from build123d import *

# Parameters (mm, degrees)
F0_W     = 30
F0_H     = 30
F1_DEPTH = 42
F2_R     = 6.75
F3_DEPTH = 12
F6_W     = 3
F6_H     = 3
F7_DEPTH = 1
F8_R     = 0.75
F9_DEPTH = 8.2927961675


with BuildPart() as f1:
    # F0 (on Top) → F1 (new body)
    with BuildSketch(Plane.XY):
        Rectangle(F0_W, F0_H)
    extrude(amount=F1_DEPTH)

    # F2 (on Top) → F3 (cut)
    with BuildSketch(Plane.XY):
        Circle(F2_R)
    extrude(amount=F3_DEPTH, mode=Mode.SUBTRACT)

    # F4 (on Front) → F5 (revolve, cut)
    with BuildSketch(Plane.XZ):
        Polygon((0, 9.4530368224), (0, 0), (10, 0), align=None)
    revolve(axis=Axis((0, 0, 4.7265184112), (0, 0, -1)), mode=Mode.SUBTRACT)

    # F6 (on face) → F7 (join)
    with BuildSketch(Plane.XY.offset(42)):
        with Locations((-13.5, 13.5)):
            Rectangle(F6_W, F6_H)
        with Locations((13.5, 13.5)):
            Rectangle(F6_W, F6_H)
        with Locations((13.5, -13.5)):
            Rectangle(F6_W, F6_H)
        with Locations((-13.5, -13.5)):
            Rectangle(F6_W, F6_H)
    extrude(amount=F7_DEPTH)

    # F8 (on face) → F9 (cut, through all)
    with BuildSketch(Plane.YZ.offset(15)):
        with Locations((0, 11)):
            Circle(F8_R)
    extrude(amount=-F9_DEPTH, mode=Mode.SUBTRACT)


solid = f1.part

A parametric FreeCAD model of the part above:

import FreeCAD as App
import Part
import Sketcher
Q = App.Units.Quantity

doc = App.newDocument("Part")
body = doc.addObject("PartDesign::Body", "Body")

# Sketch on XY plane
sketch1 = body.newObject("Sketcher::SketchObject", "Sketch")
sketch1.AttachmentSupport = (doc.getObject("XY_Plane"), [""])
sketch1.MapMode = "FlatFace"
sketch1.addGeometry([
    Part.LineSegment(App.Vector(-15, 15, 0), App.Vector(-15, -15, 0)),
    Part.LineSegment(App.Vector(-15, -15, 0), App.Vector(15, -15, 0)),
    Part.LineSegment(App.Vector(15, -15, 0), App.Vector(15, 15, 0)),
    Part.LineSegment(App.Vector(15, 15, 0), App.Vector(-15, 15, 0)),
], False)
sketch1.addConstraint([
    Sketcher.Constraint("Coincident", 0, 2, 1, 1),
    Sketcher.Constraint("Coincident", 1, 2, 2, 1),
    Sketcher.Constraint("Coincident", 2, 2, 3, 1),
    Sketcher.Constraint("Coincident", 3, 2, 0, 1),
    Sketcher.Constraint("Vertical", 0),
    Sketcher.Constraint("Horizontal", 1),
    Sketcher.Constraint("Vertical", 2),
    Sketcher.Constraint("Horizontal", 3),
    Sketcher.Constraint("Symmetric", 0, 2, 2, 2, -1, 1),
    Sketcher.Constraint("Equal", 3, 0),
    Sketcher.Constraint("DistanceX", 1, 1, 1, 2, Q("30 mm")),
])
pad1 = body.newObject("PartDesign::Pad", "Pad")
pad1.Profile = sketch1
pad1.Length = 42

# Sketch on XY plane
sketch2 = body.newObject("Sketcher::SketchObject", "Sketch001")
sketch2.AttachmentSupport = (doc.getObject("XY_Plane"), [""])
sketch2.MapMode = "FlatFace"
sketch2.addGeometry(Part.Circle(App.Vector(0, 0, 0), App.Vector(0, 0, 1), 6.75), False)
sketch2.addConstraint([
    Sketcher.Constraint("Coincident", 0, 3, -1, 1),
    Sketcher.Constraint("Diameter", 0, Q("13.5 mm")),
])
pocket1 = body.newObject("PartDesign::Pocket", "Pocket")
pocket1.Profile = sketch2
pocket1.Length = 12
pocket1.Reversed = True

# Sketch on XZ plane
sketch3 = body.newObject("Sketcher::SketchObject", "Sketch002")
sketch3.AttachmentSupport = (doc.getObject("XZ_Plane"), [""])
sketch3.MapMode = "FlatFace"
sketch3.addGeometry([
    Part.LineSegment(App.Vector(0, 9.453037, 0), App.Vector(0, 0, 0)),
    Part.LineSegment(App.Vector(0, 0, 0), App.Vector(10, 0, 0)),
    Part.LineSegment(App.Vector(10, 0, 0), App.Vector(0, 9.453037, 0)),
], False)
sketch3.addConstraint([
    Sketcher.Constraint("Coincident", 0, 2, 1, 1),
    Sketcher.Constraint("Coincident", 1, 2, 2, 1),
    Sketcher.Constraint("Coincident", 2, 2, 0, 1),
    Sketcher.Constraint("Vertical", 0),
    Sketcher.Constraint("Horizontal", 1),
    Sketcher.Constraint("Coincident", 0, 2, -1, 1),
    Sketcher.Constraint("DistanceX", 1, 1, 1, 2, Q("10 mm")),
    Sketcher.Constraint("Distance", 2, Q("13.76081 mm")),
])
groove = body.newObject("PartDesign::Groove", "Groove")
groove.Profile = sketch3
groove.ReferenceAxis = (sketch3, ["V_Axis"])
groove.Angle = 360

# Sketch on XY plane
sketch4 = body.newObject("Sketcher::SketchObject", "Sketch003")
sketch4.AttachmentSupport = (doc.getObject("XY_Plane"), [""])
sketch4.MapMode = "FlatFace"
sketch4.AttachmentOffset = App.Placement(App.Vector(0, 0, 42), App.Rotation())
sketch4.addGeometry([
    Part.LineSegment(App.Vector(-15, 15, 0), App.Vector(-15, 12, 0)),  # 0
    Part.LineSegment(App.Vector(-15, 12, 0), App.Vector(-12, 12, 0)),  # 1
    Part.LineSegment(App.Vector(-12, 12, 0), App.Vector(-12, 15, 0)),  # 2
    Part.LineSegment(App.Vector(-12, 15, 0), App.Vector(-15, 15, 0)),  # 3
    Part.LineSegment(App.Vector(12, 15, 0), App.Vector(12, 12, 0)),  # 4
    Part.LineSegment(App.Vector(12, 12, 0), App.Vector(15, 12, 0)),  # 5
    Part.LineSegment(App.Vector(15, 12, 0), App.Vector(15, 15, 0)),  # 6
    Part.LineSegment(App.Vector(15, 15, 0), App.Vector(12, 15, 0)),  # 7
    Part.LineSegment(App.Vector(12, -12, 0), App.Vector(12, -15, 0)),  # 8
    Part.LineSegment(App.Vector(12, -15, 0), App.Vector(15, -15, 0)),  # 9
    Part.LineSegment(App.Vector(15, -15, 0), App.Vector(15, -12, 0)),  # 10
    Part.LineSegment(App.Vector(15, -12, 0), App.Vector(12, -12, 0)),  # 11
    Part.LineSegment(App.Vector(-15, -12, 0), App.Vector(-15, -15, 0)),  # 12
    Part.LineSegment(App.Vector(-15, -15, 0), App.Vector(-12, -15, 0)),  # 13
    Part.LineSegment(App.Vector(-12, -15, 0), App.Vector(-12, -12, 0)),  # 14
    Part.LineSegment(App.Vector(-12, -12, 0), App.Vector(-15, -12, 0)),  # 15
], False)
sketch4.addConstraint([
    Sketcher.Constraint("Coincident", 0, 2, 1, 1),
    Sketcher.Constraint("Coincident", 1, 2, 2, 1),
    Sketcher.Constraint("Coincident", 2, 2, 3, 1),
    Sketcher.Constraint("Coincident", 3, 2, 0, 1),
    Sketcher.Constraint("Coincident", 4, 2, 5, 1),
    Sketcher.Constraint("Coincident", 5, 2, 6, 1),
    Sketcher.Constraint("Coincident", 6, 2, 7, 1),
    Sketcher.Constraint("Coincident", 7, 2, 4, 1),
    Sketcher.Constraint("Coincident", 8, 2, 9, 1),
    Sketcher.Constraint("Coincident", 9, 2, 10, 1),
    Sketcher.Constraint("Coincident", 10, 2, 11, 1),
    Sketcher.Constraint("Coincident", 11, 2, 8, 1),
    Sketcher.Constraint("Coincident", 12, 2, 13, 1),
    Sketcher.Constraint("Coincident", 13, 2, 14, 1),
    Sketcher.Constraint("Coincident", 14, 2, 15, 1),
    Sketcher.Constraint("Coincident", 15, 2, 12, 1),
    Sketcher.Constraint("Vertical", 0),
    Sketcher.Constraint("Horizontal", 1),
    Sketcher.Constraint("Vertical", 2),
    Sketcher.Constraint("Horizontal", 3),
    Sketcher.Constraint("Vertical", 4),
    Sketcher.Constraint("Horizontal", 5),
    Sketcher.Constraint("Vertical", 6),
    Sketcher.Constraint("Horizontal", 7),
    Sketcher.Constraint("Vertical", 8),
    Sketcher.Constraint("Horizontal", 9),
    Sketcher.Constraint("Vertical", 10),
    Sketcher.Constraint("Horizontal", 11),
    Sketcher.Constraint("Vertical", 12),
    Sketcher.Constraint("Horizontal", 13),
    Sketcher.Constraint("Vertical", 14),
    Sketcher.Constraint("Horizontal", 15),
    Sketcher.Constraint("Symmetric", 2, 2, 8, 2, -1, 1),
    Sketcher.Constraint("Symmetric", 0, 2, 10, 2, -1, 1),
    Sketcher.Constraint("Symmetric", 6, 2, 12, 2, -1, 1),
    Sketcher.Constraint("Symmetric", 4, 2, 14, 2, -1, 1),
    Sketcher.Constraint("Symmetric", 1, 2, 4, 2, -2),
    Sketcher.Constraint("Symmetric", 3, 2, 6, 2, -2),
    Sketcher.Constraint("Equal", 15, 0),
    Sketcher.Constraint("DistanceX", 1, 1, 1, 2, Q("3 mm")),
    Sketcher.Constraint("DistanceX", 0, 2, -1, 1, Q("15 mm")),
    Sketcher.Constraint("DistanceY", -1, 1, 0, 2, Q("12 mm")),
])
pad2 = body.newObject("PartDesign::Pad", "Pad001")
pad2.Profile = sketch4
pad2.Length = 1

# Sketch on YZ plane
sketch5 = body.newObject("Sketcher::SketchObject", "Sketch004")
sketch5.AttachmentSupport = (doc.getObject("YZ_Plane"), [""])
sketch5.MapMode = "FlatFace"
sketch5.AttachmentOffset = App.Placement(App.Vector(0, 0, 15), App.Rotation())
sketch5.addGeometry(Part.Circle(App.Vector(0, 11, 0), App.Vector(0, 0, 1), 0.75), False)
sketch5.addConstraint([
    Sketcher.Constraint("PointOnObject", 0, 3, -2),
    Sketcher.Constraint("Diameter", 0, Q("1.5 mm")),
    Sketcher.Constraint("DistanceY", -1, 1, 0, 3, Q("11 mm")),
])
pocket2 = body.newObject("PartDesign::Pocket", "Pocket001")
pocket2.Profile = sketch5
pocket2.Length = 8.292796

doc.recompute()
